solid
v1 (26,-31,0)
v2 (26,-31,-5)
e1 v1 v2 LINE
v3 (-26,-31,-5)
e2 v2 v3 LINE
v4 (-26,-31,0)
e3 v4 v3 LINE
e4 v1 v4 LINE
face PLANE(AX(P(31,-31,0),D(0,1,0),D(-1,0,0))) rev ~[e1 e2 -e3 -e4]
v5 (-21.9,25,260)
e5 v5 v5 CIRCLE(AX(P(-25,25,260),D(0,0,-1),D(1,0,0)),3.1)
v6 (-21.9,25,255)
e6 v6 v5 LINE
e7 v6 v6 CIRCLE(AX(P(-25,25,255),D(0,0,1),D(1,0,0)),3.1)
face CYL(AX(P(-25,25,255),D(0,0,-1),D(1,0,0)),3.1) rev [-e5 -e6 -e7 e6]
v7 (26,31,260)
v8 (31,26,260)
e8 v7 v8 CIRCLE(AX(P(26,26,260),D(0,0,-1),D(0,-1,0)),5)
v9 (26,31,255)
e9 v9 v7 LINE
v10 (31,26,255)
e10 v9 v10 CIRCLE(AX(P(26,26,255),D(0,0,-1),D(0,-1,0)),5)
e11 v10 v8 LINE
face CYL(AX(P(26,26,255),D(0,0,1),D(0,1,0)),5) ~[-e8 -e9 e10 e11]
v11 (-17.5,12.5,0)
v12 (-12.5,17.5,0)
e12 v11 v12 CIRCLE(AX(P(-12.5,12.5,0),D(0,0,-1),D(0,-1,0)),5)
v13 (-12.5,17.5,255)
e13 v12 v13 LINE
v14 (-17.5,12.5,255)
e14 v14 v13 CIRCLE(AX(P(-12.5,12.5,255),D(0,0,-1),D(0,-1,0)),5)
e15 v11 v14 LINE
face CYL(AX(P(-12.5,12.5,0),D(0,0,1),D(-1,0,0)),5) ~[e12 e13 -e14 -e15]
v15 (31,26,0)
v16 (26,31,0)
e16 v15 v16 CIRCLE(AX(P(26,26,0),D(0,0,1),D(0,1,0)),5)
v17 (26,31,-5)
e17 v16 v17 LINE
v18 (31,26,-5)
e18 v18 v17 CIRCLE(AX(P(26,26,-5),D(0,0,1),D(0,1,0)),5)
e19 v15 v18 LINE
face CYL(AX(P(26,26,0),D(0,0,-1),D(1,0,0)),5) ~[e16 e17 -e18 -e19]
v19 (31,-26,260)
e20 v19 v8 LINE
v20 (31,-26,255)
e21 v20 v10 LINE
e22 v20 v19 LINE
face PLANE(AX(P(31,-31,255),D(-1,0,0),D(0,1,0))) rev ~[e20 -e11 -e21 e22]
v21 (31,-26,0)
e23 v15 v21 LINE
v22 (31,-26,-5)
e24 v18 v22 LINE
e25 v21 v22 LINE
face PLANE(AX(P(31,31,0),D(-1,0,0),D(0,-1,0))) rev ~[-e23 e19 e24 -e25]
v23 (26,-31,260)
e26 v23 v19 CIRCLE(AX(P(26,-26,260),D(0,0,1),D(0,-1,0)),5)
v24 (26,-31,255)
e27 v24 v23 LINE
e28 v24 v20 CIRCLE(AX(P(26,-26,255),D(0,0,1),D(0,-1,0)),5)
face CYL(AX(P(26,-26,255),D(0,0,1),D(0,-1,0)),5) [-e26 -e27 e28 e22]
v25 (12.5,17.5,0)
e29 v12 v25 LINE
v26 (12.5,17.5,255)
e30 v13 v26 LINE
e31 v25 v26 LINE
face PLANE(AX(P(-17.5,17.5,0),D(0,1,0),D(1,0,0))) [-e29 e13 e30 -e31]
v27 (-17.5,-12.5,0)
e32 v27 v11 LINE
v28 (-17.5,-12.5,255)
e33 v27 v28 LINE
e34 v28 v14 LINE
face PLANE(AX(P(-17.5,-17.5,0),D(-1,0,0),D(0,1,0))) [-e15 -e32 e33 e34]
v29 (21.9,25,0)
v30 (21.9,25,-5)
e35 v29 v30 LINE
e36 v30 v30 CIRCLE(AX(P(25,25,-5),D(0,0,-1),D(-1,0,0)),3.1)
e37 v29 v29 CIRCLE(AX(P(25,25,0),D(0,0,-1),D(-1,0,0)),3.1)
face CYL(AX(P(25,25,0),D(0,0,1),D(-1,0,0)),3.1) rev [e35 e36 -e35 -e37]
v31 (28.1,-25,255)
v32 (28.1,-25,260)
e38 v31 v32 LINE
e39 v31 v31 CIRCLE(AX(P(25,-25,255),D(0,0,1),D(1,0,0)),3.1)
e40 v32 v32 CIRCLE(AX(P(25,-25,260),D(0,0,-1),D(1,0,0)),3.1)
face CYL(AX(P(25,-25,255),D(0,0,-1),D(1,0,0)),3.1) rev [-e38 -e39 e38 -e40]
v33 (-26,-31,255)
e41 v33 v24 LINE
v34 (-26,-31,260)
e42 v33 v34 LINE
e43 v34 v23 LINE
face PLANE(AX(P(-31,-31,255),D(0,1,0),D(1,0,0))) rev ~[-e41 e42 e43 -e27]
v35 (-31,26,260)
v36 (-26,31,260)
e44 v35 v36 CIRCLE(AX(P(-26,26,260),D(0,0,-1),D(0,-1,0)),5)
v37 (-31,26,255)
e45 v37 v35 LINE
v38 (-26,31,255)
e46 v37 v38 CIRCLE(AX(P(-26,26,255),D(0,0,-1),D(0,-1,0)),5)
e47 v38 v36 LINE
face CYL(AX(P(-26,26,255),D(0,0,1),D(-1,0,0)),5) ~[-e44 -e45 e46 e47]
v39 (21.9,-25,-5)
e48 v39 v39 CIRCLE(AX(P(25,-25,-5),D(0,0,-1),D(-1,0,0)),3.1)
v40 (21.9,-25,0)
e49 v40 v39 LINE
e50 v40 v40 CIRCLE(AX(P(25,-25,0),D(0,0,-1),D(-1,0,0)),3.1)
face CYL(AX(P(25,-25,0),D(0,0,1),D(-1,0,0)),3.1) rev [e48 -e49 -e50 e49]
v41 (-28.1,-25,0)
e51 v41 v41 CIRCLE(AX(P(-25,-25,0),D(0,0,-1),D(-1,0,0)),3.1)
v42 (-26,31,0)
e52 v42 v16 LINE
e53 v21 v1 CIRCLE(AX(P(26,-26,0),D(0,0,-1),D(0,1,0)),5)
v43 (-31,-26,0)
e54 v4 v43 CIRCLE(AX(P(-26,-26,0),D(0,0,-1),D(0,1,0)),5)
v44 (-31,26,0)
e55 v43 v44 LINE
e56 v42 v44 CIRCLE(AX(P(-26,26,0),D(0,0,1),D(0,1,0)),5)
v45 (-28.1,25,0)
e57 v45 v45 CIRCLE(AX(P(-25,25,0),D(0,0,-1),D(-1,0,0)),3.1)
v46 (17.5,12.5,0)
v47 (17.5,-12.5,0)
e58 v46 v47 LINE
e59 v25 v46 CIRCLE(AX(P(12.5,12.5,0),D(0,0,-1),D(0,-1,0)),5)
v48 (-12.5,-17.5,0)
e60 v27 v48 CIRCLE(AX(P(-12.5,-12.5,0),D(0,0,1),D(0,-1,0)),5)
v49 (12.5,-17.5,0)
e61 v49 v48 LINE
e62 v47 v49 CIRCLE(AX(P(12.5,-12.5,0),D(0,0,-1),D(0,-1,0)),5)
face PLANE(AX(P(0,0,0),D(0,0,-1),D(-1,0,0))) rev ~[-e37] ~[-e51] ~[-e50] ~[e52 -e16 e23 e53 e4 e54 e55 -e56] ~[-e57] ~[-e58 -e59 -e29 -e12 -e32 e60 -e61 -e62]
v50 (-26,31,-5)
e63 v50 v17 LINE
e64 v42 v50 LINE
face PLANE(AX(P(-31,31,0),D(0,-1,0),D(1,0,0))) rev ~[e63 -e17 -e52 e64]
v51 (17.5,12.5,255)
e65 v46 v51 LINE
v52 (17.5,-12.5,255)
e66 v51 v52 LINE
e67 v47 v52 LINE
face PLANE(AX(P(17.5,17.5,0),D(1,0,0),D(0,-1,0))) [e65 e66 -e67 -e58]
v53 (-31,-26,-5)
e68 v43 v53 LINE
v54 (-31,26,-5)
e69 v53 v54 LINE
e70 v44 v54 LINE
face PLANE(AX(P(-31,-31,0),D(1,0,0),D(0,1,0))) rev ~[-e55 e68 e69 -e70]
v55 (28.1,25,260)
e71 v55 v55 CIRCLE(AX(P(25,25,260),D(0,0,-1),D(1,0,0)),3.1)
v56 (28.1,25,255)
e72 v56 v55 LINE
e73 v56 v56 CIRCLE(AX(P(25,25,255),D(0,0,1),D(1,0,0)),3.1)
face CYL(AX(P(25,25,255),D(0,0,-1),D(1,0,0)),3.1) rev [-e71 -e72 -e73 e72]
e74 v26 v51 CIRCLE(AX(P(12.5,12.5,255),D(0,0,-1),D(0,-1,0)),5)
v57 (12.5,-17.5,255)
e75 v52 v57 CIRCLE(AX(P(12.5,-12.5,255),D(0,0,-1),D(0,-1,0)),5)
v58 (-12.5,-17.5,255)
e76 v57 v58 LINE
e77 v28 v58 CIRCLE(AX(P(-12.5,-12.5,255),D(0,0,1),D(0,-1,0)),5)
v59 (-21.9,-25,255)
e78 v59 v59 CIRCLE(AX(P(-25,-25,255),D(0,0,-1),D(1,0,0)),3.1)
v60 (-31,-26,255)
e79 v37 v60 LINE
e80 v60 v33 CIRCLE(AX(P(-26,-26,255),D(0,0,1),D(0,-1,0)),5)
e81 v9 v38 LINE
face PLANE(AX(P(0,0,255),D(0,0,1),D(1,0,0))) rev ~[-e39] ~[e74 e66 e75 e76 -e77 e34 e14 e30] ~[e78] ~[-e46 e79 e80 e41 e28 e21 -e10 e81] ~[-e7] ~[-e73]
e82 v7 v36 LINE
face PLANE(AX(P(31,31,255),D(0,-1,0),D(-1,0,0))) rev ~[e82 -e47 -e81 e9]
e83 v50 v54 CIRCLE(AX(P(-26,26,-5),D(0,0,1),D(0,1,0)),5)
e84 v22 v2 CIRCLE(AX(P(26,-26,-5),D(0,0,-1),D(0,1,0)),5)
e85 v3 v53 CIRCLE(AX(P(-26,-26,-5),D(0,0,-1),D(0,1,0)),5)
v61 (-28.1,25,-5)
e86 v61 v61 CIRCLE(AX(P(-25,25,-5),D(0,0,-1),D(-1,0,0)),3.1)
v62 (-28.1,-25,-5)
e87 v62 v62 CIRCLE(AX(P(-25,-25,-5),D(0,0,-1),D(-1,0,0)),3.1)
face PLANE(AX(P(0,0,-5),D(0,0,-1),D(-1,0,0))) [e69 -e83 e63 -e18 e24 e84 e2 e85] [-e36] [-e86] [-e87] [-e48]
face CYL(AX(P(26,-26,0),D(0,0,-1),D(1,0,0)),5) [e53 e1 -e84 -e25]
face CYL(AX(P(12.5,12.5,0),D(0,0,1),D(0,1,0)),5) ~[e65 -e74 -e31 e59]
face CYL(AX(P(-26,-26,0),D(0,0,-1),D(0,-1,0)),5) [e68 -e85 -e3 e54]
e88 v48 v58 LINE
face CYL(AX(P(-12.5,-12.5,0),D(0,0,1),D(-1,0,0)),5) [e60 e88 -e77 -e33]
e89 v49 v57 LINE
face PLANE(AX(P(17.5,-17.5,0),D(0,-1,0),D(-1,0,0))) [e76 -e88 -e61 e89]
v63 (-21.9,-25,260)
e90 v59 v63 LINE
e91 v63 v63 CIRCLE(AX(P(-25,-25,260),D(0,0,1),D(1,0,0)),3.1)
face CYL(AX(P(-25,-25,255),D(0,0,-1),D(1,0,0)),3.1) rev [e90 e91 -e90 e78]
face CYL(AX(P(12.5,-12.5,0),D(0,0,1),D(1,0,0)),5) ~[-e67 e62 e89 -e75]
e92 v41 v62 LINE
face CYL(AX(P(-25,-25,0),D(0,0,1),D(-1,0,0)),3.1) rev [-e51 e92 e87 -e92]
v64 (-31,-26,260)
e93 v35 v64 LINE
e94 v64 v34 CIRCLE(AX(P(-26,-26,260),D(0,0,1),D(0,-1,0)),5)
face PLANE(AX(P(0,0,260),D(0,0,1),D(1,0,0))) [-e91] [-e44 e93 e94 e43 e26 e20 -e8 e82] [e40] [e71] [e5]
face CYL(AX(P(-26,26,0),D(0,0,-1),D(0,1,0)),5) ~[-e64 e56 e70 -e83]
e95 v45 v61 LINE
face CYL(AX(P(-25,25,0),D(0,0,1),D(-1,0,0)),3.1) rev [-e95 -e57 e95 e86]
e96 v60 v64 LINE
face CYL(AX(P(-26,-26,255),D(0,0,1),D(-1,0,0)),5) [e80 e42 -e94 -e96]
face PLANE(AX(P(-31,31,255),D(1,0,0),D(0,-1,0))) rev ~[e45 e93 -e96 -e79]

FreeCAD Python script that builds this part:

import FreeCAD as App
import Part
import Sketcher
from FreeCAD import Vector
Q = App.Units.Quantity


def edges_at(feature, points):
    """Names of the edges that pass closest to the given points."""
    edges = feature.Shape.Edges
    near = lambda p: min(range(len(edges)), key=lambda i: edges[i].distToShape(Part.Vertex(*p))[0])
    return sorted({f"Edge{near(p) + 1}" for p in points})

doc = App.newDocument("Part")
body = doc.addObject("PartDesign::Body", "Body")

# Sketch on XY plane
sketch1 = body.newObject("Sketcher::SketchObject", "Sketch")
sketch1.AttachmentSupport = (doc.getObject("XY_Plane"), [""])
sketch1.MapMode = "FlatFace"
sketch1.addGeometry([
    Part.LineSegment(Vector(18, 18, 0), Vector(-18, 18, 0)),
    Part.LineSegment(Vector(-18, 18, 0), Vector(-18, -18, 0)),
    Part.LineSegment(Vector(-18, -18, 0), Vector(18, -18, 0)),
    Part.LineSegment(Vector(18, -18, 0), Vector(18, 18, 0)),
], False)
sketch1.addConstraint([
    Sketcher.Constraint("Coincident", 0, 2, 1, 1),
    Sketcher.Constraint("Coincident", 1, 2, 2, 1),
    Sketcher.Constraint("Coincident", 2, 2, 3, 1),
    Sketcher.Constraint("Coincident", 3, 2, 0, 1),
    Sketcher.Constraint("Horizontal", 0),
    Sketcher.Constraint("Vertical", 1),
    Sketcher.Constraint("Horizontal", 2),
    Sketcher.Constraint("Vertical", 3),
    Sketcher.Constraint("Symmetric", 0, 2, 2, 2, -1, 1),
    Sketcher.Constraint("Equal", 2, 1),
    Sketcher.Constraint("DistanceX", 0, 2, 0, 1, Q("35 mm")),
])
pad1 = body.newObject("PartDesign::Pad", "Pad")
pad1.Profile = sketch1
pad1.Length = 255

# Sketch on XY plane
sketch2 = body.newObject("Sketcher::SketchObject", "Sketch001")
sketch2.AttachmentSupport = (doc.getObject("XY_Plane"), [""])
sketch2.MapMode = "FlatFace"
sketch2.AttachmentOffset = App.Placement(Vector(0, 0, 255), App.Rotation())
sketch2.addGeometry([
    Part.LineSegment(Vector(-31, 31, 0), Vector(-31, -31, 0)),  # 0
    Part.LineSegment(Vector(-31, -31, 0), Vector(31, -31, 0)),  # 1
    Part.LineSegment(Vector(31, -31, 0), Vector(31, 31, 0)),  # 2
    Part.LineSegment(Vector(31, 31, 0), Vector(-31, 31, 0)),  # 3
    Part.Circle(Vector(-25, -25, 0), Vector(0, 0, 1), 3.1),  # 4
    Part.Circle(Vector(-25, 25, 0), Vector(0, 0, 1), 3.1),  # 5
    Part.Circle(Vector(25, 25, 0), Vector(0, 0, 1), 3.1),  # 6
    Part.Circle(Vector(25, -25, 0), Vector(0, 0, 1), 3.1),  # 7
], False)
sketch2.addConstraint([
    Sketcher.Constraint("Coincident", 0, 2, 1, 1),
    Sketcher.Constraint("Coincident", 1, 2, 2, 1),
    Sketcher.Constraint("Coincident", 2, 2, 3, 1),
    Sketcher.Constraint("Coincident", 3, 2, 0, 1),
    Sketcher.Constraint("Vertical", 0),
    Sketcher.Constraint("Horizontal", 1),
    Sketcher.Constraint("Vertical", 2),
    Sketcher.Constraint("Horizontal", 3),
    Sketcher.Constraint("Equal", 4, 5),
    Sketcher.Constraint("Equal", 5, 6),
    Sketcher.Constraint("Equal", 6, 7),
    Sketcher.Constraint("Symmetric", 4, 3, 6, 3, -1, 1),
    Sketcher.Constraint("Symmetric", 5, 3, 7, 3, -1, 1),
    Sketcher.Constraint("Symmetric", 0, 2, 2, 2, -1, 1),
    Sketcher.Constraint("Symmetric", 5, 3, 6, 3, -2),
    Sketcher.Constraint("Equal", 3, 0),
    Sketcher.Constraint("Diameter", 4, Q("6.2 mm")),
    Sketcher.Constraint("DistanceX", 1, 1, 1, 2, Q("62 mm")),
    Sketcher.Constraint("DistanceY", 4, 3, 5, 3, Q("50 mm")),
    Sketcher.Constraint("DistanceX", 5, 3, 6, 3, Q("50 mm")),
])
pad2 = body.newObject("PartDesign::Pad", "Pad001")
pad2.Profile = sketch2
pad2.Length = 5

# Sketch on XY plane
sketch3 = body.newObject("Sketcher::SketchObject", "Sketch002")
sketch3.AttachmentSupport = (doc.getObject("XY_Plane"), [""])
sketch3.MapMode = "FlatFace"
sketch3.addGeometry([
    Part.LineSegment(Vector(31, 31, 0), Vector(31, -31, 0)),  # 0
    Part.LineSegment(Vector(31, -31, 0), Vector(-31, -31, 0)),  # 1
    Part.LineSegment(Vector(-31, -31, 0), Vector(-31, 31, 0)),  # 2
    Part.LineSegment(Vector(-31, 31, 0), Vector(31, 31, 0)),  # 3
    Part.Circle(Vector(25, -25, 0), Vector(0, 0, 1), 3.1),  # 4
    Part.Circle(Vector(-25, -25, 0), Vector(0, 0, 1), 3.1),  # 5
    Part.Circle(Vector(25, 25, 0), Vector(0, 0, 1), 3.1),  # 6
    Part.Circle(Vector(-25, 25, 0), Vector(0, 0, 1), 3.1),  # 7
], False)
sketch3.addConstraint([
    Sketcher.Constraint("Coincident", 0, 2, 1, 1),
    Sketcher.Constraint("Coincident", 1, 2, 2, 1),
    Sketcher.Constraint("Coincident", 2, 2, 3, 1),
    Sketcher.Constraint("Coincident", 3, 2, 0, 1),
    Sketcher.Constraint("Vertical", 0),
    Sketcher.Constraint("Horizontal", 1),
    Sketcher.Constraint("Vertical", 2),
    Sketcher.Constraint("Horizontal", 3),
    Sketcher.Constraint("Equal", 4, 5),
    Sketcher.Constraint("Equal", 5, 6),
    Sketcher.Constraint("Equal", 6, 7),
    Sketcher.Constraint("Symmetric", 5, 3, 6, 3, -1, 1),
    Sketcher.Constraint("Symmetric", 4, 3, 7, 3, -1, 1),
    Sketcher.Constraint("Symmetric", 0, 2, 2, 2, -1, 1),
    Sketcher.Constraint("Symmetric", 4, 3, 5, 3, -2),
    Sketcher.Constraint("Equal", 3, 0),
    Sketcher.Constraint("Diameter", 4, Q("6.2 mm")),
    Sketcher.Constraint("DistanceX", 1, 2, 1, 1, Q("62 mm")),
    Sketcher.Constraint("DistanceX", -1, 1, 4, 3, Q("25 mm")),
    Sketcher.Constraint("DistanceY", 4, 3, -1, 1, Q("25 mm")),
])
pad3 = body.newObject("PartDesign::Pad", "Pad002")
pad3.Profile = sketch3
pad3.Length = 5
pad3.Reversed = True
doc.recompute()

fillet = body.newObject("PartDesign::Fillet", "Fillet")
fillet.Base = (pad3, edges_at(pad3, [
    (17.5, 17.5, 127.5),
    (17.5, -17.5, 127.5),
    (-17.5, 17.5, 127.5),
    (31, 31, -2.5),
    (31, -31, -2.5),
    (-17.5, -17.5, 127.5),
    (-31, -31, -2.5),
    (-31, 31, -2.5),
    (-31, -31, 257.5),
    (-31, 31, 257.5),
    (31, -31, 257.5),
    (31, 31, 257.5),
]))
fillet.Radius = 5

doc.recompute()
